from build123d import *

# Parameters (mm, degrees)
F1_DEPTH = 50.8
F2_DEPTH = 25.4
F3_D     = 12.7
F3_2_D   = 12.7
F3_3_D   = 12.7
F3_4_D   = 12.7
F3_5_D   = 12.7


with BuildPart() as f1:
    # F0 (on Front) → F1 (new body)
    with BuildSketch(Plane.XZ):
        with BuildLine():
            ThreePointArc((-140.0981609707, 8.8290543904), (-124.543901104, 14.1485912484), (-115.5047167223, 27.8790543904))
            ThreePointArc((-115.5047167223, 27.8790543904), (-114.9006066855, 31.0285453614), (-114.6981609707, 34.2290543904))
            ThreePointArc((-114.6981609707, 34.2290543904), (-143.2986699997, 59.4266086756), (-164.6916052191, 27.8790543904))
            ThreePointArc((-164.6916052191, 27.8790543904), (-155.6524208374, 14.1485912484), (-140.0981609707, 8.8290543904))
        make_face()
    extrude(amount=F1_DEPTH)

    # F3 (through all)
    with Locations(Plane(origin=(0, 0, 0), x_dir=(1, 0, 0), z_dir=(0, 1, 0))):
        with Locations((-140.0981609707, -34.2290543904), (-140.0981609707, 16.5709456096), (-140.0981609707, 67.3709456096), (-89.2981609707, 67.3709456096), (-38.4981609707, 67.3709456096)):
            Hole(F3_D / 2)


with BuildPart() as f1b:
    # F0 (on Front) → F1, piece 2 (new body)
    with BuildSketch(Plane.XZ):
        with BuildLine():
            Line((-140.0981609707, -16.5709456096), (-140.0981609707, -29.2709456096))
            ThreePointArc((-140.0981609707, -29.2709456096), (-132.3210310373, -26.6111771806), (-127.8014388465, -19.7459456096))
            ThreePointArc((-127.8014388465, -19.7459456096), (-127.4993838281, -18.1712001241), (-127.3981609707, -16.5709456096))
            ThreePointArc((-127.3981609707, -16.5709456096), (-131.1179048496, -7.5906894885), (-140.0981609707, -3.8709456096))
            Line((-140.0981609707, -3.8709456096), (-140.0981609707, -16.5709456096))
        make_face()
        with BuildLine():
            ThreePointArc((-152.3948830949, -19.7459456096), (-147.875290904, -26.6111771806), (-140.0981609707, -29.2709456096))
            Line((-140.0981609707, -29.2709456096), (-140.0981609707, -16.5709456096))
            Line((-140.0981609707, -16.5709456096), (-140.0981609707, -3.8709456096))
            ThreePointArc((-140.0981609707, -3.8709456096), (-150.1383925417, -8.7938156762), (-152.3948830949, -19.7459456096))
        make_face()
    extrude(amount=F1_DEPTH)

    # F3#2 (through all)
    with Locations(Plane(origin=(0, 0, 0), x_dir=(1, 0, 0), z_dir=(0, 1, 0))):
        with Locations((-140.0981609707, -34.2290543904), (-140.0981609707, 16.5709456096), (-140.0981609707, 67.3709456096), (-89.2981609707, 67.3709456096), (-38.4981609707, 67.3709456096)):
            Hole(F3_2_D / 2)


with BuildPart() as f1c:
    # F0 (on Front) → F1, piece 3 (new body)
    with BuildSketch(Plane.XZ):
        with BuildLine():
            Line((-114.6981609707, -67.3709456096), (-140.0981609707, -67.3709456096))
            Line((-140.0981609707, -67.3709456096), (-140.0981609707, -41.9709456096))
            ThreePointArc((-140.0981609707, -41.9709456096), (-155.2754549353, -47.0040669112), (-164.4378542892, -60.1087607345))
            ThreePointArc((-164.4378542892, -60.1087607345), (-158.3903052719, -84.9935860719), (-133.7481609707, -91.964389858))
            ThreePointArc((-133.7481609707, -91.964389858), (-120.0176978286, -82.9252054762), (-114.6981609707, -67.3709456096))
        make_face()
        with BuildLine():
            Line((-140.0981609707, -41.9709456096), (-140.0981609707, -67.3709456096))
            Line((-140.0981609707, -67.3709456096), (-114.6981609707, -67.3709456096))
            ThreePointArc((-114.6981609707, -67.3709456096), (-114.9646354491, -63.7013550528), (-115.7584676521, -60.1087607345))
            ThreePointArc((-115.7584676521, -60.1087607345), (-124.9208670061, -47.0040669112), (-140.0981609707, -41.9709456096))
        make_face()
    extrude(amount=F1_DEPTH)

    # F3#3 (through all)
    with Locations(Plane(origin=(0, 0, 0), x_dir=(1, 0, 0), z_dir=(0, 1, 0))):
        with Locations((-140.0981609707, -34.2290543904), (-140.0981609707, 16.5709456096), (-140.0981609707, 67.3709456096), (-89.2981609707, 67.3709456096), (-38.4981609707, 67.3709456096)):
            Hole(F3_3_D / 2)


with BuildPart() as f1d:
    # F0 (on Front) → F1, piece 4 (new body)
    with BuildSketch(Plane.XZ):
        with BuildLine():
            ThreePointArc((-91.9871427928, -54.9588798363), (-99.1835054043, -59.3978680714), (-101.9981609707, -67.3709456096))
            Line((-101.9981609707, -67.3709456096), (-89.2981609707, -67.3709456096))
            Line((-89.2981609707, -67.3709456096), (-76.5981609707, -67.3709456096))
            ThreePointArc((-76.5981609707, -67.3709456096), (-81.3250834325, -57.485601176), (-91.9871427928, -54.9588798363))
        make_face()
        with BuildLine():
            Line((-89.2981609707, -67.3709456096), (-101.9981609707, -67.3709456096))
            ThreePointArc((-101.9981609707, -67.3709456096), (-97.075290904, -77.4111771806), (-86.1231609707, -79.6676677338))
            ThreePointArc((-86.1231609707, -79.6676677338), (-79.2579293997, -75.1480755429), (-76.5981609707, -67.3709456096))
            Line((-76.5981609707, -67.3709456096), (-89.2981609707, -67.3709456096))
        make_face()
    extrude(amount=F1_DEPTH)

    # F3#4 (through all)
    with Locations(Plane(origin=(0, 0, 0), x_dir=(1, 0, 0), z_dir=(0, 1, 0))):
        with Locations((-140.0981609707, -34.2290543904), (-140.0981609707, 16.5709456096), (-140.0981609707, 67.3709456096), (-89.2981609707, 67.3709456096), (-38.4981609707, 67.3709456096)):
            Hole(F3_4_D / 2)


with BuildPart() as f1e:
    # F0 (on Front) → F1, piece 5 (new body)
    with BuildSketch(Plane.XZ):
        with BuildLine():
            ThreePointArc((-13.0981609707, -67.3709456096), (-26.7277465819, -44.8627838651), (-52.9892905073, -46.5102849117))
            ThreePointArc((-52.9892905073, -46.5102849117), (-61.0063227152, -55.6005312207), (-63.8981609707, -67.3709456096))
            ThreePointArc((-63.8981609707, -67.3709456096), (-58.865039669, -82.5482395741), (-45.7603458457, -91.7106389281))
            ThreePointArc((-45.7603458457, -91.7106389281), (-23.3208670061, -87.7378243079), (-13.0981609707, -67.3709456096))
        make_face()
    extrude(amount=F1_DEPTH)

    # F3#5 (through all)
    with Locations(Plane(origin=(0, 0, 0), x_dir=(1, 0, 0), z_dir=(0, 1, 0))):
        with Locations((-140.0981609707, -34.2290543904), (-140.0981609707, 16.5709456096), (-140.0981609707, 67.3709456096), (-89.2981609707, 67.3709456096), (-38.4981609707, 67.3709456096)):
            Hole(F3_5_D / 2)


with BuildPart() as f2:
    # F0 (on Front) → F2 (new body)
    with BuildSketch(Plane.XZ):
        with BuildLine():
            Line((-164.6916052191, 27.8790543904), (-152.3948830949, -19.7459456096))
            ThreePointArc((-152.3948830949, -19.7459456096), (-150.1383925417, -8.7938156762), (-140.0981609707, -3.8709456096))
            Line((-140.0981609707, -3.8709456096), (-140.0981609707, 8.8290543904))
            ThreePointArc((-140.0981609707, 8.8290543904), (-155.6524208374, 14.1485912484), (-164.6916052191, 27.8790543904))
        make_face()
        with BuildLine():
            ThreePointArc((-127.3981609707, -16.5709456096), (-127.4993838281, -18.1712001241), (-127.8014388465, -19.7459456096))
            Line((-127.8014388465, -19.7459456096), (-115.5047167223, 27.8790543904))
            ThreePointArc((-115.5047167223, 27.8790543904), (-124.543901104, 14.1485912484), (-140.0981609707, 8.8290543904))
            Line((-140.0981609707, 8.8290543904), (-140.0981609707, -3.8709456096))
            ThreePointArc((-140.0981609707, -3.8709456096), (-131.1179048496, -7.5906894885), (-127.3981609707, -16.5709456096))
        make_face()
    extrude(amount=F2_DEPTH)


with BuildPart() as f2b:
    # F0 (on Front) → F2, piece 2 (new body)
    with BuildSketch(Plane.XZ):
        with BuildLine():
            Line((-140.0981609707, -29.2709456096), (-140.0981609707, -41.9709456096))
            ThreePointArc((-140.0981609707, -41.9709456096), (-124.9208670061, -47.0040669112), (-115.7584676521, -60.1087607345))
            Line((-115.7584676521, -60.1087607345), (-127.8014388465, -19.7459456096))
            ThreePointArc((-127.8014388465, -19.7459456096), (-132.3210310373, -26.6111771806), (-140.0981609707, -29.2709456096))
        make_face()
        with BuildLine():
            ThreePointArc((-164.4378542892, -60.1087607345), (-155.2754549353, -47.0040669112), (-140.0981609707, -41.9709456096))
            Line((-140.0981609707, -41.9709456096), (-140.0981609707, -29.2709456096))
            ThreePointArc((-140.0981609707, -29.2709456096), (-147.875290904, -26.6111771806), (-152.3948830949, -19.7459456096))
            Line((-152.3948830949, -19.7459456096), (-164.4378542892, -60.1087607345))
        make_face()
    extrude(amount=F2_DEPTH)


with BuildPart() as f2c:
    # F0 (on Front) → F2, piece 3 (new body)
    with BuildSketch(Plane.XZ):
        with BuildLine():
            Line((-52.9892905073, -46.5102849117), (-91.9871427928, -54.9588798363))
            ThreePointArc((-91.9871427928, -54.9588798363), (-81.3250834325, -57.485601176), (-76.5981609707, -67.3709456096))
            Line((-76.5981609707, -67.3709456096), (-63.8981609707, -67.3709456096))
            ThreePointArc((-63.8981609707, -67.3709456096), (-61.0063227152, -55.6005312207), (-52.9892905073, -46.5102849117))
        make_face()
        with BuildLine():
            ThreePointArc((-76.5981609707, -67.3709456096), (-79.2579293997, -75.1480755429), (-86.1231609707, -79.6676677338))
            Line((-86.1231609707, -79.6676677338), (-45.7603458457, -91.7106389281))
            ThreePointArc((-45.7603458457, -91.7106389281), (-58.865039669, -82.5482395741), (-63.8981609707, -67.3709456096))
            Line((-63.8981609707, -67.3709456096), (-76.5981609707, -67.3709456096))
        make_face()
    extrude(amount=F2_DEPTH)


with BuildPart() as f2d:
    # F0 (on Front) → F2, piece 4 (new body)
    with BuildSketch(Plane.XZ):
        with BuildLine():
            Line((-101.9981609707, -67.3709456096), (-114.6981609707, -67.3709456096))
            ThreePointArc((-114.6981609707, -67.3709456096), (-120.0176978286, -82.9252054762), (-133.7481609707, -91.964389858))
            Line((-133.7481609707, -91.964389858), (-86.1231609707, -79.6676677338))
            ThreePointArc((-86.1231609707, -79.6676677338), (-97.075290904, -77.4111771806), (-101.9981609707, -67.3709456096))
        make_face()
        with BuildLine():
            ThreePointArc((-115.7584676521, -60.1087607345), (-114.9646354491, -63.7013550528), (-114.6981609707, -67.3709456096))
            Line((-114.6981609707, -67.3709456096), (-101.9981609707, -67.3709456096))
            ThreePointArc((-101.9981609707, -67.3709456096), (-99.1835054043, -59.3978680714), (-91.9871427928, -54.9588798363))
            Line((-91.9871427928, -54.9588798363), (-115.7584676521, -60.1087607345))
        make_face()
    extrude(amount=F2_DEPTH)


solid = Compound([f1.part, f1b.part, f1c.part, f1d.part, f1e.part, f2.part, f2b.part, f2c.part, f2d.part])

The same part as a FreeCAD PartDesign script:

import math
import FreeCAD as App
import Part
import Sketcher

V = App.Vector
Q = App.Units.Quantity

doc = App.newDocument("Part")
body = doc.addObject("PartDesign::Body", "Body")

# Sketch on XZ plane
sketch1 = body.newObject("Sketcher::SketchObject", "Sketch")
sketch1.AttachmentSupport = (doc.getObject("XZ_Plane"), [""])
sketch1.MapMode = "FlatFace"
sketch1.addGeometry([
    Part.ArcOfCircle(Part.Circle(V(-140, 34, 0), V(0, 0, 1), 25), math.radians(-90), math.radians(-14)),
    Part.ArcOfCircle(Part.Circle(V(-140, 34, 0), V(0, 0, 1), 25), math.radians(-14.48), math.radians(0)),
    Part.ArcOfCircle(Part.Circle(V(-140, 34, 0), V(0, 0, 1), 25), math.radians(0), math.radians(194)),
    Part.ArcOfCircle(Part.Circle(V(-140, 34, 0), V(0, 0, 1), 25), math.radians(-166), math.radians(-90)),
], False)
sketch1.addConstraint([
    Sketcher.Constraint("Tangent", 0, 2, 1, 1),
    Sketcher.Constraint("Tangent", 1, 2, 2, 1),
    Sketcher.Constraint("Tangent", 2, 2, 3, 1),
    Sketcher.Constraint("Tangent", 3, 2, 0, 1),
    Sketcher.Constraint("Equal", 0, 1),
    Sketcher.Constraint("Horizontal", 3, 3, 1, 2),
    Sketcher.Constraint("Horizontal", 0, 2, 2, 2),
    Sketcher.Constraint("Vertical", 2, 3, 3, 2),
    Sketcher.Constraint("Radius", 0, Q("1 in")),
    Sketcher.Constraint("DistanceY", 0, 2, 1, 3, Q("0.25 in")),
    Sketcher.Constraint("DistanceX", 0, 3, -1, 1, 140.098161),
    Sketcher.Constraint("DistanceY", -1, 1, 0, 3, 34.229054),
])
pad1 = body.newObject("PartDesign::Pad", "Pad")
pad1.Profile = sketch1
pad1.Length = Q("2 in")

# Sketch on XZ plane
sketch2 = body.newObject("Sketcher::SketchObject", "Sketch001")
sketch2.AttachmentSupport = (doc.getObject("XZ_Plane"), [""])
sketch2.MapMode = "FlatFace"
sketch2.addGeometry([
    Part.Circle(V(-140, 34, 0), V(0, 0, 1), 6),  # 0
    Part.Circle(V(-140, -17, 0), V(0, 0, 1), 6),  # 1
    Part.Circle(V(-140, -67, 0), V(0, 0, 1), 6),  # 2
    Part.Circle(V(-89, -67, 0), V(0, 0, 1), 6),  # 3
    Part.Circle(V(-38, -67, 0), V(0, 0, 1), 6),  # 4
], False)
sketch2.addConstraint([
    Sketcher.Constraint("Equal", 0, 1),
    Sketcher.Constraint("Equal", 1, 2),
    Sketcher.Constraint("Equal", 2, 3),
    Sketcher.Constraint("Equal", 3, 4),
    Sketcher.Constraint("Horizontal", 2, 3, 3, 3),
    Sketcher.Constraint("Horizontal", 3, 3, 4, 3),
    Sketcher.Constraint("Vertical", 0, 3, 1, 3),
    Sketcher.Constraint("Vertical", 1, 3, 2, 3),
    Sketcher.Constraint("Diameter", 0, Q("0.5 in")),
    Sketcher.Constraint("DistanceY", 1, 3, 0, 3, Q("2 in")),
    Sketcher.Constraint("DistanceY", 2, 3, 1, 3, Q("2 in")),
    Sketcher.Constraint("DistanceX", 2, 3, 3, 3, Q("2 in")),
    Sketcher.Constraint("DistanceX", 3, 3, 4, 3, Q("2 in")),
    Sketcher.Constraint("DistanceX", 0, 3, -1, 1, 140.098161),
    Sketcher.Constraint("DistanceY", -1, 1, 0, 3, 34.229054),
])
doc.recompute()
hole = body.newObject("PartDesign::Hole", "Hole")
hole.Profile = sketch2
hole.ThreadType = "None"
hole.Diameter = Q("0.5 in")
hole.DepthType = "ThroughAll"
hole.Reversed = True
body2 = doc.addObject("PartDesign::Body", "Body001")

# Sketch on XZ plane
sketch3 = body2.newObject("Sketcher::SketchObject", "Sketch002")
sketch3.AttachmentSupport = (doc.getObject("XZ_Plane001"), [""])
sketch3.MapMode = "FlatFace"
sketch3.addGeometry([
    Part.ArcOfCircle(Part.Circle(V(-140.1, -16.6, 0), V(0, 0, 1), 12.7), math.radians(-90), math.radians(-14)),  # 0
    Part.ArcOfCircle(Part.Circle(V(-140.1, -16.6, 0), V(0, 0, 1), 12.7), math.radians(-14.48), math.radians(0)),  # 1
    Part.ArcOfCircle(Part.Circle(V(-140.1, -16.6, 0), V(0, 0, 1), 12.7), math.radians(0), math.radians(90)),  # 2
    Part.ArcOfCircle(Part.Circle(V(-140.1, -16.6, 0), V(0, 0, 1), 12.7), math.radians(90), math.radians(194)),  # 3
    Part.ArcOfCircle(Part.Circle(V(-140.1, -16.6, 0), V(0, 0, 1), 12.7), math.radians(-166), math.radians(-90)),  # 4
], False)
sketch3.addConstraint([
    Sketcher.Constraint("Tangent", 0, 2, 1, 1),
    Sketcher.Constraint("Tangent", 1, 2, 2, 1),
    Sketcher.Constraint("Tangent", 2, 2, 3, 1),
    Sketcher.Constraint("Tangent", 3, 2, 4, 1),
    Sketcher.Constraint("Tangent", 4, 2, 0, 1),
    Sketcher.Constraint("Coincident", 2, 3, 0, 3),
    Sketcher.Constraint("Horizontal", 4, 3, 1, 2),
    Sketcher.Constraint("Horizontal", 0, 2, 3, 2),
    Sketcher.Constraint("Vertical", 4, 3, 2, 2),
    Sketcher.Constraint("Vertical", 2, 2, 4, 2),
    Sketcher.Constraint("Radius", 0, Q("0.5 in")),
    Sketcher.Constraint("DistanceY", 0, 2, 1, 3, Q("0.125 in")),
    Sketcher.Constraint("DistanceX", 0, 3, -1, 1, 140.098161),
    Sketcher.Constraint("DistanceY", 0, 3, -1, 1, 16.570946),
])
pad2 = body2.newObject("PartDesign::Pad", "Pad001")
pad2.Profile = sketch3
pad2.Length = Q("2 in")

# Sketch on XZ plane
sketch4 = body2.newObject("Sketcher::SketchObject", "Sketch003")
sketch4.AttachmentSupport = (doc.getObject("XZ_Plane001"), [""])
sketch4.MapMode = "FlatFace"
sketch4.addGeometry([
    Part.Circle(V(-140, 34, 0), V(0, 0, 1), 6),  # 0
    Part.Circle(V(-140, -17, 0), V(0, 0, 1), 6),  # 1
    Part.Circle(V(-140, -67, 0), V(0, 0, 1), 6),  # 2
    Part.Circle(V(-89, -67, 0), V(0, 0, 1), 6),  # 3
    Part.Circle(V(-38, -67, 0), V(0, 0, 1), 6),  # 4
], False)
sketch4.addConstraint([
    Sketcher.Constraint("Equal", 0, 1),
    Sketcher.Constraint("Equal", 1, 2),
    Sketcher.Constraint("Equal", 2, 3),
    Sketcher.Constraint("Equal", 3, 4),
    Sketcher.Constraint("Horizontal", 2, 3, 3, 3),
    Sketcher.Constraint("Horizontal", 3, 3, 4, 3),
    Sketcher.Constraint("Vertical", 0, 3, 1, 3),
    Sketcher.Constraint("Vertical", 1, 3, 2, 3),
    Sketcher.Constraint("Diameter", 0, Q("0.5 in")),
    Sketcher.Constraint("DistanceY", 1, 3, 0, 3, Q("2 in")),
    Sketcher.Constraint("DistanceY", 2, 3, 1, 3, Q("2 in")),
    Sketcher.Constraint("DistanceX", 2, 3, 3, 3, Q("2 in")),
    Sketcher.Constraint("DistanceX", 3, 3, 4, 3, Q("2 in")),
    Sketcher.Constraint("DistanceX", 0, 3, -1, 1, 140.098161),
    Sketcher.Constraint("DistanceY", -1, 1, 0, 3, 34.229054),
])
doc.recompute()
hole2 = body2.newObject("PartDesign::Hole", "Hole001")
hole2.Profile = sketch4
hole2.ThreadType = "None"
hole2.Diameter = Q("0.5 in")
hole2.DepthType = "ThroughAll"
hole2.Reversed = True
body3 = doc.addObject("PartDesign::Body", "Body002")

# Sketch on XZ plane
sketch5 = body3.newObject("Sketcher::SketchObject", "Sketch004")
sketch5.AttachmentSupport = (doc.getObject("XZ_Plane002"), [""])
sketch5.MapMode = "FlatFace"
sketch5.addGeometry([
    Part.ArcOfCircle(Part.Circle(V(-140, -67, 0), V(0, 0, 1), 25), math.radians(90), math.radians(163)),
    Part.ArcOfCircle(Part.Circle(V(-140, -67, 0), V(0, 0, 1), 25), math.radians(163), math.radians(360)),
    Part.ArcOfCircle(Part.Circle(V(-140, -67, 0), V(0, 0, 1), 25), math.radians(0), math.radians(16.61)),
    Part.ArcOfCircle(Part.Circle(V(-140, -67, 0), V(0, 0, 1), 25), math.radians(17), math.radians(90)),
], False)
sketch5.addConstraint([
    Sketcher.Constraint("Tangent", 0, 2, 1, 1),
    Sketcher.Constraint("Tangent", 1, 2, 2, 1),
    Sketcher.Constraint("Tangent", 2, 2, 3, 1),
    Sketcher.Constraint("Tangent", 3, 2, 0, 1),
    Sketcher.Constraint("Equal", 0, 1),
    Sketcher.Constraint("Horizontal", 3, 3, 1, 2),
    Sketcher.Constraint("Horizontal", 0, 2, 2, 2),
    Sketcher.Constraint("Vertical", 2, 3, 3, 2),
    Sketcher.Constraint("Radius", 0, Q("1 in")),
    Sketcher.Constraint("DistanceX", 0, 3, -1, 1, 140.098161),
    Sketcher.Constraint("DistanceY", 0, 2, -1, 1, 60.108761),
    Sketcher.Constraint("DistanceY", 0, 3, -1, 1, 67.370946),
])
pad3 = body3.newObject("PartDesign::Pad", "Pad002")
pad3.Profile = sketch5
pad3.Length = Q("2 in")

# Sketch on XZ plane
sketch6 = body3.newObject("Sketcher::SketchObject", "Sketch005")
sketch6.AttachmentSupport = (doc.getObject("XZ_Plane002"), [""])
sketch6.MapMode = "FlatFace"
sketch6.addGeometry([
    Part.Circle(V(-140, 34, 0), V(0, 0, 1), 6),  # 0
    Part.Circle(V(-140, -17, 0), V(0, 0, 1), 6),  # 1
    Part.Circle(V(-140, -67, 0), V(0, 0, 1), 6),  # 2
    Part.Circle(V(-89, -67, 0), V(0, 0, 1), 6),  # 3
    Part.Circle(V(-38, -67, 0), V(0, 0, 1), 6),  # 4
], False)
sketch6.addConstraint([
    Sketcher.Constraint("Equal", 0, 1),
    Sketcher.Constraint("Equal", 1, 2),
    Sketcher.Constraint("Equal", 2, 3),
    Sketcher.Constraint("Equal", 3, 4),
    Sketcher.Constraint("Horizontal", 2, 3, 3, 3),
    Sketcher.Constraint("Horizontal", 3, 3, 4, 3),
    Sketcher.Constraint("Vertical", 0, 3, 1, 3),
    Sketcher.Constraint("Vertical", 1, 3, 2, 3),
    Sketcher.Constraint("Diameter", 0, Q("0.5 in")),
    Sketcher.Constraint("DistanceY", 1, 3, 0, 3, Q("2 in")),
    Sketcher.Constraint("DistanceY", 2, 3, 1, 3, Q("2 in")),
    Sketcher.Constraint("DistanceX", 2, 3, 3, 3, Q("2 in")),
    Sketcher.Constraint("DistanceX", 3, 3, 4, 3, Q("2 in")),
    Sketcher.Constraint("DistanceX", 0, 3, -1, 1, 140.098161),
    Sketcher.Constraint("DistanceY", -1, 1, 0, 3, 34.229054),
])
doc.recompute()
hole3 = body3.newObject("PartDesign::Hole", "Hole002")
hole3.Profile = sketch6
hole3.ThreadType = "None"
hole3.Diameter = Q("0.5 in")
hole3.DepthType = "ThroughAll"
hole3.Reversed = True
body4 = doc.addObject("PartDesign::Body", "Body003")

# Sketch on XZ plane
sketch7 = body4.newObject("Sketcher::SketchObject", "Sketch006")
sketch7.AttachmentSupport = (doc.getObject("XZ_Plane003"), [""])
sketch7.MapMode = "FlatFace"
sketch7.addGeometry([
    Part.ArcOfCircle(Part.Circle(V(-89, -67, 0), V(0, 0, 1), 13), math.radians(102), math.radians(284)),
    Part.ArcOfCircle(Part.Circle(V(-89, -67, 0), V(0, 0, 1), 13), math.radians(-76), math.radians(0)),
    Part.ArcOfCircle(Part.Circle(V(-89, -67, 0), V(0, 0, 1), 13), math.radians(0), math.radians(102)),
], False)
sketch7.addConstraint([
    Sketcher.Constraint("Tangent", 0, 2, 1, 1),
    Sketcher.Constraint("Tangent", 1, 2, 2, 1),
    Sketcher.Constraint("Tangent", 2, 2, 0, 1),
    Sketcher.Constraint("Horizontal", 2, 3, 1, 2),
    Sketcher.Constraint("Radius", 0, Q("0.5 in")),
    Sketcher.Constraint("DistanceX", 2, 3, 0, 2, Q("0.125 in")),
    Sketcher.Constraint("DistanceX", 0, 3, -1, 1, 89.298161),
    Sketcher.Constraint("DistanceY", 2, 2, -1, 1, 54.95888),
    Sketcher.Constraint("DistanceX", 2, 2, 0, 3, 2.688982),
])
pad4 = body4.newObject("PartDesign::Pad", "Pad003")
pad4.Profile = sketch7
pad4.Length = Q("2 in")

# Sketch on XZ plane
sketch8 = body4.newObject("Sketcher::SketchObject", "Sketch007")
sketch8.AttachmentSupport = (doc.getObject("XZ_Plane003"), [""])
sketch8.MapMode = "FlatFace"
sketch8.addGeometry([
    Part.Circle(V(-140, 34, 0), V(0, 0, 1), 6),  # 0
    Part.Circle(V(-140, -17, 0), V(0, 0, 1), 6),  # 1
    Part.Circle(V(-140, -67, 0), V(0, 0, 1), 6),  # 2
    Part.Circle(V(-89, -67, 0), V(0, 0, 1), 6),  # 3
    Part.Circle(V(-38, -67, 0), V(0, 0, 1), 6),  # 4
], False)
sketch8.addConstraint([
    Sketcher.Constraint("Equal", 0, 1),
    Sketcher.Constraint("Equal", 1, 2),
    Sketcher.Constraint("Equal", 2, 3),
    Sketcher.Constraint("Equal", 3, 4),
    Sketcher.Constraint("Horizontal", 2, 3, 3, 3),
    Sketcher.Constraint("Horizontal", 3, 3, 4, 3),
    Sketcher.Constraint("Vertical", 0, 3, 1, 3),
    Sketcher.Constraint("Vertical", 1, 3, 2, 3),
    Sketcher.Constraint("Diameter", 0, Q("0.5 in")),
    Sketcher.Constraint("DistanceY", 1, 3, 0, 3, Q("2 in")),
    Sketcher.Constraint("DistanceY", 2, 3, 1, 3, Q("2 in")),
    Sketcher.Constraint("DistanceX", 2, 3, 3, 3, Q("2 in")),
    Sketcher.Constraint("DistanceX", 3, 3, 4, 3, Q("2 in")),
    Sketcher.Constraint("DistanceX", 0, 3, -1, 1, 140.098161),
    Sketcher.Constraint("DistanceY", -1, 1, 0, 3, 34.229054),
])
doc.recompute()
hole4 = body4.newObject("PartDesign::Hole", "Hole003")
hole4.Profile = sketch8
hole4.ThreadType = "None"
hole4.Diameter = Q("0.5 in")
hole4.DepthType = "ThroughAll"
hole4.Reversed = True
body5 = doc.addObject("PartDesign::Body", "Body004")

# Sketch on XZ plane
sketch9 = body5.newObject("Sketcher::SketchObject", "Sketch008")
sketch9.AttachmentSupport = (doc.getObject("XZ_Plane004"), [""])
sketch9.MapMode = "FlatFace"
sketch9.addGeometry([
    Part.ArcOfCircle(Part.Circle(V(-38, -67, 0), V(0, 0, 1), 25), math.radians(0), math.radians(125)),
    Part.ArcOfCircle(Part.Circle(V(-38, -67, 0), V(0, 0, 1), 25), math.radians(125), math.radians(180)),
    Part.ArcOfCircle(Part.Circle(V(-38, -67, 0), V(0, 0, 1), 25), math.radians(-180), math.radians(-107)),
    Part.ArcOfCircle(Part.Circle(V(-38, -67, 0), V(0, 0, 1), 25), math.radians(-107), math.radians(0)),
], False)
sketch9.addConstraint([
    Sketcher.Constraint("Tangent", 0, 2, 1, 1),
    Sketcher.Constraint("Tangent", 1, 2, 2, 1),
    Sketcher.Constraint("Tangent", 2, 2, 3, 1),
    Sketcher.Constraint("Tangent", 3, 2, 0, 1),
    Sketcher.Constraint("Equal", 0, 1),
    Sketcher.Constraint("Horizontal", 3, 3, 1, 2),
    Sketcher.Constraint("Horizontal", 1, 2, 3, 2),
    Sketcher.Constraint("Radius", 0, Q("1 in")),
    Sketcher.Constraint("DistanceX", 0, 3, -1, 1, 38.498161),
    Sketcher.Constraint("DistanceX", 0, 2, -1, 1, 52.989291),
    Sketcher.Constraint("DistanceY", 2, 2, -1, 1, 91.710639),
    Sketcher.Constraint("DistanceY", 0, 3, -1, 1, 67.370946),
])
pad5 = body5.newObject("PartDesign::Pad", "Pad004")
pad5.Profile = sketch9
pad5.Length = Q("2 in")

# Sketch on XZ plane
sketch10 = body5.newObject("Sketcher::SketchObject", "Sketch009")
sketch10.AttachmentSupport = (doc.getObject("XZ_Plane004"), [""])
sketch10.MapMode = "FlatFace"
sketch10.addGeometry([
    Part.Circle(V(-140, 34, 0), V(0, 0, 1), 6),  # 0
    Part.Circle(V(-140, -17, 0), V(0, 0, 1), 6),  # 1
    Part.Circle(V(-140, -67, 0), V(0, 0, 1), 6),  # 2
    Part.Circle(V(-89, -67, 0), V(0, 0, 1), 6),  # 3
    Part.Circle(V(-38, -67, 0), V(0, 0, 1), 6),  # 4
], False)
sketch10.addConstraint([
    Sketcher.Constraint("Equal", 0, 1),
    Sketcher.Constraint("Equal", 1, 2),
    Sketcher.Constraint("Equal", 2, 3),
    Sketcher.Constraint("Equal", 3, 4),
    Sketcher.Constraint("Horizontal", 2, 3, 3, 3),
    Sketcher.Constraint("Horizontal", 3, 3, 4, 3),
    Sketcher.Constraint("Vertical", 0, 3, 1, 3),
    Sketcher.Constraint("Vertical", 1, 3, 2, 3),
    Sketcher.Constraint("Diameter", 0, Q("0.5 in")),
    Sketcher.Constraint("DistanceY", 1, 3, 0, 3, Q("2 in")),
    Sketcher.Constraint("DistanceY", 2, 3, 1, 3, Q("2 in")),
    Sketcher.Constraint("DistanceX", 2, 3, 3, 3, Q("2 in")),
    Sketcher.Constraint("DistanceX", 3, 3, 4, 3, Q("2 in")),
    Sketcher.Constraint("DistanceX", 0, 3, -1, 1, 140.098161),
    Sketcher.Constraint("DistanceY", -1, 1, 0, 3, 34.229054),
])
doc.recompute()
hole5 = body5.newObject("PartDesign::Hole", "Hole004")
hole5.Profile = sketch10
hole5.ThreadType = "None"
hole5.Diameter = Q("0.5 in")
hole5.DepthType = "ThroughAll"
hole5.Reversed = True
body6 = doc.addObject("PartDesign::Body", "Body005")

# Sketch on XZ plane
sketch11 = body6.newObject("Sketcher::SketchObject", "Sketch010")
sketch11.AttachmentSupport = (doc.getObject("XZ_Plane005"), [""])
sketch11.MapMode = "FlatFace"
sketch11.addGeometry([
    Part.LineSegment(V(-164.7, 27.9, 0), V(-152.4, -19.7, 0)),  # 0
    Part.ArcOfCircle(Part.Circle(V(-140.1, -16.6, 0), V(0, 0, 1), 12.7), math.radians(90), math.radians(194)),  # 1
    Part.ArcOfCircle(Part.Circle(V(-140.1, -16.6, 0), V(0, 0, 1), 12.7), math.radians(0), math.radians(90)),  # 2
    Part.ArcOfCircle(Part.Circle(V(-140.1, -16.6, 0), V(0, 0, 1), 12.7), math.radians(-14.48), math.radians(0)),  # 3
    Part.LineSegment(V(-127.8, -19.7, 0), V(-115.5, 27.9, 0)),  # 4
    Part.ArcOfCircle(Part.Circle(V(-140.1, 34.2, 0), V(0, 0, 1), 25.4), math.radians(-90), math.radians(-14)),  # 5
    Part.ArcOfCircle(Part.Circle(V(-140.1, 34.2, 0), V(0, 0, 1), 25.4), math.radians(-166), math.radians(-90)),  # 6
], False)
sketch11.addConstraint([
    Sketcher.Constraint("Tangent", 0, 2, 1, 2),
    Sketcher.Constraint("Tangent", 1, 1, 2, 2),
    Sketcher.Constraint("Tangent", 2, 1, 3, 2),
    Sketcher.Constraint("Tangent", 3, 1, 4, 1),
    Sketcher.Constraint("Tangent", 4, 2, 5, 2),
    Sketcher.Constraint("Tangent", 5, 1, 6, 2),
    Sketcher.Constraint("Tangent", 6, 1, 0, 1),
    Sketcher.Constraint("Coincident", 3, 3, 1, 3),
    Sketcher.Constraint("Equal", 5, 6),
    Sketcher.Constraint("Horizontal", 3, 3, 2, 1),
    Sketcher.Constraint("Horizontal", 0, 2, 3, 1),
    Sketcher.Constraint("Vertical", 6, 3, 1, 1),
    Sketcher.Constraint("Vertical", 1, 1, 5, 1),
    Sketcher.Constraint("Radius", 5, Q("1 in")),
    Sketcher.Constraint("Radius", 1, Q("0.5 in")),
    Sketcher.Constraint("DistanceY", 2, 3, 5, 3, Q("2 in")),
    Sketcher.Constraint("DistanceX", 1, 3, -1, 1, 140.098161),
    Sketcher.Constraint("DistanceY", 1, 3, -1, 1, 16.570946),
])
pad6 = body6.newObject("PartDesign::Pad", "Pad005")
pad6.Profile = sketch11
pad6.Length = Q("1 in")
body7 = doc.addObject("PartDesign::Body", "Body006")

# Sketch on XZ plane
sketch12 = body7.newObject("Sketcher::SketchObject", "Sketch011")
sketch12.AttachmentSupport = (doc.getObject("XZ_Plane006"), [""])
sketch12.MapMode = "FlatFace"
sketch12.addGeometry([
    Part.ArcOfCircle(Part.Circle(V(-140, -67, 0), V(0, 0, 1), 25), math.radians(17), math.radians(90)),  # 0
    Part.LineSegment(V(-116, -60, 0), V(-128, -20, 0)),  # 1
    Part.ArcOfCircle(Part.Circle(V(-140, -17, 0), V(0, 0, 1), 13), math.radians(-90), math.radians(-14)),  # 2
    Part.ArcOfCircle(Part.Circle(V(-140, -17, 0), V(0, 0, 1), 13), math.radians(-166), math.radians(-90)),  # 3
    Part.LineSegment(V(-152, -20, 0), V(-164, -60, 0)),  # 4
    Part.ArcOfCircle(Part.Circle(V(-140, -67, 0), V(0, 0, 1), 25), math.radians(90), math.radians(163)),  # 5
], False)
sketch12.addConstraint([
    Sketcher.Constraint("Tangent", 0, 1, 1, 1),
    Sketcher.Constraint("Coincident", 1, 2, 2, 2),
    Sketcher.Constraint("Tangent", 2, 1, 3, 2),
    Sketcher.Constraint("Coincident", 3, 1, 4, 1),
    Sketcher.Constraint("Tangent", 4, 2, 5, 2),
    Sketcher.Constraint("Tangent", 5, 1, 0, 2),
    Sketcher.Constraint("Equal", 2, 3),
    Sketcher.Constraint("Equal", 0, 5),
    Sketcher.Constraint("Horizontal", 1, 2, 3, 1),
    Sketcher.Constraint("Horizontal", 0, 1, 4, 2),
    Sketcher.Constraint("Vertical", 5, 3, 2, 1),
    Sketcher.Constraint("Vertical", 2, 1, 5, 1),
    Sketcher.Constraint("Radius", 0, Q("1 in")),
    Sketcher.Constraint("Radius", 2, Q("0.5 in")),
    Sketcher.Constraint("DistanceY", 0, 3, 2, 3, Q("2 in")),
    Sketcher.Constraint("DistanceY", 1, 2, 2, 3, Q("0.125 in")),
    Sketcher.Constraint("DistanceX", 0, 3, -1, 1, 140.098161),
    Sketcher.Constraint("DistanceY", 0, 1, -1, 1, 60.108761),
])
pad7 = body7.newObject("PartDesign::Pad", "Pad006")
pad7.Profile = sketch12
pad7.Length = Q("1 in")
body8 = doc.addObject("PartDesign::Body", "Body007")

# Sketch on XZ plane
sketch13 = body8.newObject("Sketcher::SketchObject", "Sketch012")
sketch13.AttachmentSupport = (doc.getObject("XZ_Plane007"), [""])
sketch13.MapMode = "FlatFace"
sketch13.addGeometry([
    Part.LineSegment(V(-53, -47, 0), V(-92, -55, 0)),  # 0
    Part.ArcOfCircle(Part.Circle(V(-89, -67, 0), V(0, 0, 1), 13), math.radians(0), math.radians(102)),  # 1
    Part.ArcOfCircle(Part.Circle(V(-89, -67, 0), V(0, 0, 1), 13), math.radians(-76), math.radians(0)),  # 2
    Part.LineSegment(V(-86, -80, 0), V(-46, -92, 0)),  # 3
    Part.ArcOfCircle(Part.Circle(V(-38, -67, 0), V(0, 0, 1), 25), math.radians(-180), math.radians(-107)),  # 4
    Part.ArcOfCircle(Part.Circle(V(-38, -67, 0), V(0, 0, 1), 25), math.radians(125), math.radians(180)),  # 5
], False)
sketch13.addConstraint([
    Sketcher.Constraint("Tangent", 0, 2, 1, 2),
    Sketcher.Constraint("Tangent", 1, 1, 2, 2),
    Sketcher.Constraint("Coincident", 2, 1, 3, 1),
    Sketcher.Constraint("Tangent", 3, 2, 4, 2),
    Sketcher.Constraint("Tangent", 4, 1, 5, 2),
    Sketcher.Constraint("Coincident", 5, 1, 0, 1),
    Sketcher.Constraint("Equal", 1, 2),
    Sketcher.Constraint("Equal", 4, 5),
    Sketcher.Constraint("Horizontal", 2, 3, 4, 3),
    Sketcher.Constraint("Horizontal", 5, 3, 1, 1),
    Sketcher.Constraint("Horizontal", 1, 1, 4, 1),
    Sketcher.Constraint("Radius", 4, Q("1 in")),
    Sketcher.Constraint("Radius", 1, Q("0.5 in")),
    Sketcher.Constraint("DistanceX", 1, 3, 4, 3, Q("2 in")),
    Sketcher.Constraint("DistanceX", 1, 3, 2, 1, Q("0.125 in")),
    Sketcher.Constraint("Distance", 0, 39.902522),
    Sketcher.Constraint("DistanceX", 1, 3, -1, 1, 89.298161),
    Sketcher.Constraint("DistanceY", 0, 2, -1, 1, 54.95888),
])
pad8 = body8.newObject("PartDesign::Pad", "Pad007")
pad8.Profile = sketch13
pad8.Length = Q("1 in")
body9 = doc.addObject("PartDesign::Body", "Body008")

# Sketch on XZ plane
sketch14 = body9.newObject("Sketcher::SketchObject", "Sketch013")
sketch14.AttachmentSupport = (doc.getObject("XZ_Plane008"), [""])
sketch14.MapMode = "FlatFace"
sketch14.addGeometry([
    Part.ArcOfCircle(Part.Circle(V(-140, -67, 0), V(0, 0, 1), 25), math.radians(-76), math.radians(0)),  # 0
    Part.LineSegment(V(-134, -92, 0), V(-86, -80, 0)),  # 1
    Part.ArcOfCircle(Part.Circle(V(-89, -67, 0), V(0, 0, 1), 13), math.radians(102), math.radians(284)),  # 2
    Part.LineSegment(V(-92, -55, 0), V(-116, -60, 0)),  # 3
    Part.ArcOfCircle(Part.Circle(V(-140, -67, 0), V(0, 0, 1), 25), math.radians(0), math.radians(16.61)),  # 4
], False)
sketch14.addConstraint([
    Sketcher.Constraint("Tangent", 0, 1, 1, 1),
    Sketcher.Constraint("Tangent", 1, 2, 2, 2),
    Sketcher.Constraint("Tangent", 2, 1, 3, 1),
    Sketcher.Constraint("Coincident", 3, 2, 4, 2),
    Sketcher.Constraint("Tangent", 4, 1, 0, 2),
    Sketcher.Constraint("Equal", 0, 4),
    Sketcher.Constraint("Horizontal", 0, 3, 2, 3),
    Sketcher.Constraint("Horizontal", 2, 3, 4, 1),
    Sketcher.Constraint("Radius", 0, Q("1 in")),
    Sketcher.Constraint("Radius", 2, Q("0.5 in")),
    Sketcher.Constraint("DistanceX", 0, 3, 2, 3, Q("2 in")),
    Sketcher.Constraint("Distance", 3, 24.32277),
    Sketcher.Constraint("DistanceX", 0, 3, -1, 1, 140.098161),
    Sketcher.Constraint("DistanceY", 0, 1, -1, 1, 91.96439),
])
pad9 = body9.newObject("PartDesign::Pad", "Pad008")
pad9.Profile = sketch14
pad9.Length = Q("1 in")

doc.recompute()
